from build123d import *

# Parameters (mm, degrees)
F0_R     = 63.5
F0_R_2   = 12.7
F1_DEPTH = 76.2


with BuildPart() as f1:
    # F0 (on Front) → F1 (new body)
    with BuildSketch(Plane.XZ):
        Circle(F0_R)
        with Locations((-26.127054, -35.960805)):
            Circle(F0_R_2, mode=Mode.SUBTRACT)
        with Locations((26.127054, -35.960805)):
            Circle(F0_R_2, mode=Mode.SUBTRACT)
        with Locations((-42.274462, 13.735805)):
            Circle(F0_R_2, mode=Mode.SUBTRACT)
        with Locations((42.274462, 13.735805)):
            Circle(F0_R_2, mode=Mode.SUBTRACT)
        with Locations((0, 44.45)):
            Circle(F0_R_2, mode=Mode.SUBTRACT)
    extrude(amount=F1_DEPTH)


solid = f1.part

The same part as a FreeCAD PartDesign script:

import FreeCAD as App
import Part
import Sketcher

V = App.Vector
Q = App.Units.Quantity

doc = App.newDocument("Part")
body = doc.addObject("PartDesign::Body", "Body")

sketch1 = doc.addObject("Sketcher::SketchObject", "Sketch")
body.addObject(sketch1)
sketch1.AttachmentSupport = (doc.XZ_Plane, [""])
sketch1.MapMode = "FlatFace"
sketch1.addGeometry([
    Part.Circle(V(0, 0, 0), V(0, 0, 1), 64),
    Part.Circle(V(-26, -36, 0), V(0, 0, 1), 13),
    Part.Circle(V(26, -36, 0), V(0, 0, 1), 13),
    Part.Circle(V(-42, 14, 0), V(0, 0, 1), 13),
    Part.Circle(V(42, 14, 0), V(0, 0, 1), 13),
    Part.Circle(V(0, 44, 0), V(0, 0, 1), 13),
], False)
sketch1.addConstraint([
    Sketcher.Constraint("Coincident", 0, 3, -1, 1),
    Sketcher.Constraint("Equal", 1, 2),
    Sketcher.Constraint("Equal", 2, 3),
    Sketcher.Constraint("Equal", 3, 4),
    Sketcher.Constraint("Equal", 4, 5),
    Sketcher.Constraint("Symmetric", 1, 3, 2, 3, -2),
    Sketcher.Constraint("Symmetric", 3, 3, 4, 3, -2),
    Sketcher.Constraint("PointOnObject", 5, 3, -2),
    Sketcher.Constraint("Diameter", 0, Q("5 in")),
    Sketcher.Constraint("Diameter", 1, Q("1 in")),
    Sketcher.Constraint("DistanceY", -1, 1, 5, 3, Q("1.75 in")),
    Sketcher.Constraint("DistanceX", 1, 3, 2, 3, 52.254108),
    Sketcher.Constraint("DistanceY", 1, 3, 3, 3, 49.69661),
    Sketcher.Constraint("DistanceY", 1, 3, -1, 1, 35.960805),
    Sketcher.Constraint("DistanceX", 3, 3, -1, 1, 42.274462),
])
pad1 = doc.addObject("PartDesign::Pad", "Pad")
body.addObject(pad1)
pad1.Profile = sketch1
pad1.Length = Q("3 in")

doc.recompute()
